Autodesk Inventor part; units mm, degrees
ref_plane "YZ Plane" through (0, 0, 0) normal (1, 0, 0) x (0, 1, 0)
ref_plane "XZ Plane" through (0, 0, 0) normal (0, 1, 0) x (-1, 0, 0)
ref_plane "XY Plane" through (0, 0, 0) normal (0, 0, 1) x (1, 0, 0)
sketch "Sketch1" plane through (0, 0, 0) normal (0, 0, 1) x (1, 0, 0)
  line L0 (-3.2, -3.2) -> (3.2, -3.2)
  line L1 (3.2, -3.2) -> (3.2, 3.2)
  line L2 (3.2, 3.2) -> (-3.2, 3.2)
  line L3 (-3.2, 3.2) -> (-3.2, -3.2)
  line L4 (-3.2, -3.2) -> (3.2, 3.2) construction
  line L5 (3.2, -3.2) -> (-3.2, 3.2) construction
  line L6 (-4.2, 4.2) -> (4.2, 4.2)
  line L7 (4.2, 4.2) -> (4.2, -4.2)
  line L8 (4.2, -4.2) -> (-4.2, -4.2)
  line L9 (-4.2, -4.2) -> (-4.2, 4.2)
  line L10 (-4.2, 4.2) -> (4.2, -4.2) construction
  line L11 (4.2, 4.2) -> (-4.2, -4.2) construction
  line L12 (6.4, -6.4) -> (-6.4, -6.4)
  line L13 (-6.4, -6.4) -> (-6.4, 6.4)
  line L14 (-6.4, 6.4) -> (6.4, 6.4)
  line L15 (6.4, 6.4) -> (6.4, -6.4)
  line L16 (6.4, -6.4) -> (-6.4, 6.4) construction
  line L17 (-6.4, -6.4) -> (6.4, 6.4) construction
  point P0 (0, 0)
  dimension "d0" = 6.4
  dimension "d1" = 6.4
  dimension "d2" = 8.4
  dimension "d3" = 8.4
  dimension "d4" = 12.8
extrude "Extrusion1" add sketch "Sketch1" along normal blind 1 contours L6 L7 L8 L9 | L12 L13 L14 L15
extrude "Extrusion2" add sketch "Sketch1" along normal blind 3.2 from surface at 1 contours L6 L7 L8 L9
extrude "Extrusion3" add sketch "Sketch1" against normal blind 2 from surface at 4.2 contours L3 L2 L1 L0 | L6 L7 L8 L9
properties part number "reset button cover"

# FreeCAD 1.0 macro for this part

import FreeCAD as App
import Part
import Sketcher
Q = App.Units.Quantity


def add_polygon(sketch, points):
    """Adds a closed chain of lines whose ends are joined by coincident constraints."""
    first, n = sketch.GeometryCount, len(points)
    for a, b in zip(points, points[1:] + points[:1]):
        sketch.addGeometry(Part.LineSegment(App.Vector(*a, 0), App.Vector(*b, 0)), False)
    for i in range(n):
        sketch.addConstraint(Sketcher.Constraint("Coincident", first + i, 2, first + (i + 1) % n, 1))

doc = App.newDocument("Part")
body = doc.addObject("PartDesign::Body", "Body")

# Sketch on XY plane
sketch1 = body.newObject("Sketcher::SketchObject", "Sketch")
sketch1.AttachmentSupport = (doc.getObject("XY_Plane"), [""])
sketch1.MapMode = "FlatFace"
add_polygon(sketch1, [(-6, -6), (6, -6), (6, 6), (-6, 6)])  # lines 0-3
add_polygon(sketch1, [(3, -3), (-3, -3), (-3, 3), (3, 3)])  # lines 4-7
sketch1.addConstraint(Sketcher.Constraint("Horizontal", 0))
sketch1.addConstraint(Sketcher.Constraint("Vertical", 1))
sketch1.addConstraint(Sketcher.Constraint("Horizontal", 2))
sketch1.addConstraint(Sketcher.Constraint("Vertical", 3))
sketch1.addConstraint(Sketcher.Constraint("Horizontal", 4))
sketch1.addConstraint(Sketcher.Constraint("Vertical", 5))
sketch1.addConstraint(Sketcher.Constraint("Horizontal", 6))
sketch1.addConstraint(Sketcher.Constraint("Vertical", 7))
sketch1.addConstraint(Sketcher.Constraint("Symmetric", 0, 2, 2, 2, -1, 1))
sketch1.addConstraint(Sketcher.Constraint("Symmetric", 4, 2, 6, 2, -1, 1))
sketch1.addConstraint(Sketcher.Constraint("Equal", 2, 1))
sketch1.addConstraint(Sketcher.Constraint("Equal", 6, 5))
sketch1.addConstraint(Sketcher.Constraint("DistanceX", 0, 1, 0, 2, Q("12.8 mm")))
sketch1.addConstraint(Sketcher.Constraint("DistanceX", 4, 2, 4, 1, Q("6.4 mm")))
pad1 = body.newObject("PartDesign::Pad", "Pad")
pad1.Profile = sketch1
pad1.Length = 1

# Sketch on XY plane
sketch2 = body.newObject("Sketcher::SketchObject", "Sketch001")
sketch2.AttachmentSupport = (doc.getObject("XY_Plane"), [""])
sketch2.MapMode = "FlatFace"
sketch2.AttachmentOffset = App.Placement(App.Vector(0, 0, 1), App.Rotation())
add_polygon(sketch2, [(4, 4), (-4, 4), (-4, -4), (4, -4)])  # lines 0-3
add_polygon(sketch2, [(3, -3), (-3, -3), (-3, 3), (3, 3)])  # lines 4-7
sketch2.addConstraint(Sketcher.Constraint("Horizontal", 0))
sketch2.addConstraint(Sketcher.Constraint("Vertical", 1))
sketch2.addConstraint(Sketcher.Constraint("Horizontal", 2))
sketch2.addConstraint(Sketcher.Constraint("Vertical", 3))
sketch2.addConstraint(Sketcher.Constraint("Horizontal", 4))
sketch2.addConstraint(Sketcher.Constraint("Vertical", 5))
sketch2.addConstraint(Sketcher.Constraint("Horizontal", 6))
sketch2.addConstraint(Sketcher.Constraint("Vertical", 7))
sketch2.addConstraint(Sketcher.Constraint("Symmetric", 0, 2, 2, 2, -1, 1))
sketch2.addConstraint(Sketcher.Constraint("Symmetric", 4, 2, 6, 2, -1, 1))
sketch2.addConstraint(Sketcher.Constraint("Equal", 2, 1))
sketch2.addConstraint(Sketcher.Constraint("Equal", 6, 5))
sketch2.addConstraint(Sketcher.Constraint("DistanceX", 0, 2, 0, 1, Q("8.4 mm")))
sketch2.addConstraint(Sketcher.Constraint("DistanceX", 4, 2, 4, 1, Q("6.4 mm")))
pad2 = body.newObject("PartDesign::Pad", "Pad001")
pad2.Profile = sketch2
pad2.Length = 3.2

# Sketch on XY plane
sketch3 = body.newObject("Sketcher::SketchObject", "Sketch002")
sketch3.AttachmentSupport = (doc.getObject("XY_Plane"), [""])
sketch3.MapMode = "FlatFace"
sketch3.AttachmentOffset = App.Placement(App.Vector(0, 0, 4.2), App.Rotation())
add_polygon(sketch3, [(4, 4), (-4, 4), (-4, -4), (4, -4)])  # lines 0-3
sketch3.addConstraint(Sketcher.Constraint("Horizontal", 0))
sketch3.addConstraint(Sketcher.Constraint("Vertical", 1))
sketch3.addConstraint(Sketcher.Constraint("Horizontal", 2))
sketch3.addConstraint(Sketcher.Constraint("Vertical", 3))
sketch3.addConstraint(Sketcher.Constraint("Symmetric", 0, 2, 2, 2, -1, 1))
sketch3.addConstraint(Sketcher.Constraint("Equal", 2, 1))
sketch3.addConstraint(Sketcher.Constraint("DistanceX", 0, 2, 0, 1, Q("8.4 mm")))
pad3 = body.newObject("PartDesign::Pad", "Pad002")
pad3.Profile = sketch3
pad3.Length = 2
pad3.Reversed = True

doc.recompute()
